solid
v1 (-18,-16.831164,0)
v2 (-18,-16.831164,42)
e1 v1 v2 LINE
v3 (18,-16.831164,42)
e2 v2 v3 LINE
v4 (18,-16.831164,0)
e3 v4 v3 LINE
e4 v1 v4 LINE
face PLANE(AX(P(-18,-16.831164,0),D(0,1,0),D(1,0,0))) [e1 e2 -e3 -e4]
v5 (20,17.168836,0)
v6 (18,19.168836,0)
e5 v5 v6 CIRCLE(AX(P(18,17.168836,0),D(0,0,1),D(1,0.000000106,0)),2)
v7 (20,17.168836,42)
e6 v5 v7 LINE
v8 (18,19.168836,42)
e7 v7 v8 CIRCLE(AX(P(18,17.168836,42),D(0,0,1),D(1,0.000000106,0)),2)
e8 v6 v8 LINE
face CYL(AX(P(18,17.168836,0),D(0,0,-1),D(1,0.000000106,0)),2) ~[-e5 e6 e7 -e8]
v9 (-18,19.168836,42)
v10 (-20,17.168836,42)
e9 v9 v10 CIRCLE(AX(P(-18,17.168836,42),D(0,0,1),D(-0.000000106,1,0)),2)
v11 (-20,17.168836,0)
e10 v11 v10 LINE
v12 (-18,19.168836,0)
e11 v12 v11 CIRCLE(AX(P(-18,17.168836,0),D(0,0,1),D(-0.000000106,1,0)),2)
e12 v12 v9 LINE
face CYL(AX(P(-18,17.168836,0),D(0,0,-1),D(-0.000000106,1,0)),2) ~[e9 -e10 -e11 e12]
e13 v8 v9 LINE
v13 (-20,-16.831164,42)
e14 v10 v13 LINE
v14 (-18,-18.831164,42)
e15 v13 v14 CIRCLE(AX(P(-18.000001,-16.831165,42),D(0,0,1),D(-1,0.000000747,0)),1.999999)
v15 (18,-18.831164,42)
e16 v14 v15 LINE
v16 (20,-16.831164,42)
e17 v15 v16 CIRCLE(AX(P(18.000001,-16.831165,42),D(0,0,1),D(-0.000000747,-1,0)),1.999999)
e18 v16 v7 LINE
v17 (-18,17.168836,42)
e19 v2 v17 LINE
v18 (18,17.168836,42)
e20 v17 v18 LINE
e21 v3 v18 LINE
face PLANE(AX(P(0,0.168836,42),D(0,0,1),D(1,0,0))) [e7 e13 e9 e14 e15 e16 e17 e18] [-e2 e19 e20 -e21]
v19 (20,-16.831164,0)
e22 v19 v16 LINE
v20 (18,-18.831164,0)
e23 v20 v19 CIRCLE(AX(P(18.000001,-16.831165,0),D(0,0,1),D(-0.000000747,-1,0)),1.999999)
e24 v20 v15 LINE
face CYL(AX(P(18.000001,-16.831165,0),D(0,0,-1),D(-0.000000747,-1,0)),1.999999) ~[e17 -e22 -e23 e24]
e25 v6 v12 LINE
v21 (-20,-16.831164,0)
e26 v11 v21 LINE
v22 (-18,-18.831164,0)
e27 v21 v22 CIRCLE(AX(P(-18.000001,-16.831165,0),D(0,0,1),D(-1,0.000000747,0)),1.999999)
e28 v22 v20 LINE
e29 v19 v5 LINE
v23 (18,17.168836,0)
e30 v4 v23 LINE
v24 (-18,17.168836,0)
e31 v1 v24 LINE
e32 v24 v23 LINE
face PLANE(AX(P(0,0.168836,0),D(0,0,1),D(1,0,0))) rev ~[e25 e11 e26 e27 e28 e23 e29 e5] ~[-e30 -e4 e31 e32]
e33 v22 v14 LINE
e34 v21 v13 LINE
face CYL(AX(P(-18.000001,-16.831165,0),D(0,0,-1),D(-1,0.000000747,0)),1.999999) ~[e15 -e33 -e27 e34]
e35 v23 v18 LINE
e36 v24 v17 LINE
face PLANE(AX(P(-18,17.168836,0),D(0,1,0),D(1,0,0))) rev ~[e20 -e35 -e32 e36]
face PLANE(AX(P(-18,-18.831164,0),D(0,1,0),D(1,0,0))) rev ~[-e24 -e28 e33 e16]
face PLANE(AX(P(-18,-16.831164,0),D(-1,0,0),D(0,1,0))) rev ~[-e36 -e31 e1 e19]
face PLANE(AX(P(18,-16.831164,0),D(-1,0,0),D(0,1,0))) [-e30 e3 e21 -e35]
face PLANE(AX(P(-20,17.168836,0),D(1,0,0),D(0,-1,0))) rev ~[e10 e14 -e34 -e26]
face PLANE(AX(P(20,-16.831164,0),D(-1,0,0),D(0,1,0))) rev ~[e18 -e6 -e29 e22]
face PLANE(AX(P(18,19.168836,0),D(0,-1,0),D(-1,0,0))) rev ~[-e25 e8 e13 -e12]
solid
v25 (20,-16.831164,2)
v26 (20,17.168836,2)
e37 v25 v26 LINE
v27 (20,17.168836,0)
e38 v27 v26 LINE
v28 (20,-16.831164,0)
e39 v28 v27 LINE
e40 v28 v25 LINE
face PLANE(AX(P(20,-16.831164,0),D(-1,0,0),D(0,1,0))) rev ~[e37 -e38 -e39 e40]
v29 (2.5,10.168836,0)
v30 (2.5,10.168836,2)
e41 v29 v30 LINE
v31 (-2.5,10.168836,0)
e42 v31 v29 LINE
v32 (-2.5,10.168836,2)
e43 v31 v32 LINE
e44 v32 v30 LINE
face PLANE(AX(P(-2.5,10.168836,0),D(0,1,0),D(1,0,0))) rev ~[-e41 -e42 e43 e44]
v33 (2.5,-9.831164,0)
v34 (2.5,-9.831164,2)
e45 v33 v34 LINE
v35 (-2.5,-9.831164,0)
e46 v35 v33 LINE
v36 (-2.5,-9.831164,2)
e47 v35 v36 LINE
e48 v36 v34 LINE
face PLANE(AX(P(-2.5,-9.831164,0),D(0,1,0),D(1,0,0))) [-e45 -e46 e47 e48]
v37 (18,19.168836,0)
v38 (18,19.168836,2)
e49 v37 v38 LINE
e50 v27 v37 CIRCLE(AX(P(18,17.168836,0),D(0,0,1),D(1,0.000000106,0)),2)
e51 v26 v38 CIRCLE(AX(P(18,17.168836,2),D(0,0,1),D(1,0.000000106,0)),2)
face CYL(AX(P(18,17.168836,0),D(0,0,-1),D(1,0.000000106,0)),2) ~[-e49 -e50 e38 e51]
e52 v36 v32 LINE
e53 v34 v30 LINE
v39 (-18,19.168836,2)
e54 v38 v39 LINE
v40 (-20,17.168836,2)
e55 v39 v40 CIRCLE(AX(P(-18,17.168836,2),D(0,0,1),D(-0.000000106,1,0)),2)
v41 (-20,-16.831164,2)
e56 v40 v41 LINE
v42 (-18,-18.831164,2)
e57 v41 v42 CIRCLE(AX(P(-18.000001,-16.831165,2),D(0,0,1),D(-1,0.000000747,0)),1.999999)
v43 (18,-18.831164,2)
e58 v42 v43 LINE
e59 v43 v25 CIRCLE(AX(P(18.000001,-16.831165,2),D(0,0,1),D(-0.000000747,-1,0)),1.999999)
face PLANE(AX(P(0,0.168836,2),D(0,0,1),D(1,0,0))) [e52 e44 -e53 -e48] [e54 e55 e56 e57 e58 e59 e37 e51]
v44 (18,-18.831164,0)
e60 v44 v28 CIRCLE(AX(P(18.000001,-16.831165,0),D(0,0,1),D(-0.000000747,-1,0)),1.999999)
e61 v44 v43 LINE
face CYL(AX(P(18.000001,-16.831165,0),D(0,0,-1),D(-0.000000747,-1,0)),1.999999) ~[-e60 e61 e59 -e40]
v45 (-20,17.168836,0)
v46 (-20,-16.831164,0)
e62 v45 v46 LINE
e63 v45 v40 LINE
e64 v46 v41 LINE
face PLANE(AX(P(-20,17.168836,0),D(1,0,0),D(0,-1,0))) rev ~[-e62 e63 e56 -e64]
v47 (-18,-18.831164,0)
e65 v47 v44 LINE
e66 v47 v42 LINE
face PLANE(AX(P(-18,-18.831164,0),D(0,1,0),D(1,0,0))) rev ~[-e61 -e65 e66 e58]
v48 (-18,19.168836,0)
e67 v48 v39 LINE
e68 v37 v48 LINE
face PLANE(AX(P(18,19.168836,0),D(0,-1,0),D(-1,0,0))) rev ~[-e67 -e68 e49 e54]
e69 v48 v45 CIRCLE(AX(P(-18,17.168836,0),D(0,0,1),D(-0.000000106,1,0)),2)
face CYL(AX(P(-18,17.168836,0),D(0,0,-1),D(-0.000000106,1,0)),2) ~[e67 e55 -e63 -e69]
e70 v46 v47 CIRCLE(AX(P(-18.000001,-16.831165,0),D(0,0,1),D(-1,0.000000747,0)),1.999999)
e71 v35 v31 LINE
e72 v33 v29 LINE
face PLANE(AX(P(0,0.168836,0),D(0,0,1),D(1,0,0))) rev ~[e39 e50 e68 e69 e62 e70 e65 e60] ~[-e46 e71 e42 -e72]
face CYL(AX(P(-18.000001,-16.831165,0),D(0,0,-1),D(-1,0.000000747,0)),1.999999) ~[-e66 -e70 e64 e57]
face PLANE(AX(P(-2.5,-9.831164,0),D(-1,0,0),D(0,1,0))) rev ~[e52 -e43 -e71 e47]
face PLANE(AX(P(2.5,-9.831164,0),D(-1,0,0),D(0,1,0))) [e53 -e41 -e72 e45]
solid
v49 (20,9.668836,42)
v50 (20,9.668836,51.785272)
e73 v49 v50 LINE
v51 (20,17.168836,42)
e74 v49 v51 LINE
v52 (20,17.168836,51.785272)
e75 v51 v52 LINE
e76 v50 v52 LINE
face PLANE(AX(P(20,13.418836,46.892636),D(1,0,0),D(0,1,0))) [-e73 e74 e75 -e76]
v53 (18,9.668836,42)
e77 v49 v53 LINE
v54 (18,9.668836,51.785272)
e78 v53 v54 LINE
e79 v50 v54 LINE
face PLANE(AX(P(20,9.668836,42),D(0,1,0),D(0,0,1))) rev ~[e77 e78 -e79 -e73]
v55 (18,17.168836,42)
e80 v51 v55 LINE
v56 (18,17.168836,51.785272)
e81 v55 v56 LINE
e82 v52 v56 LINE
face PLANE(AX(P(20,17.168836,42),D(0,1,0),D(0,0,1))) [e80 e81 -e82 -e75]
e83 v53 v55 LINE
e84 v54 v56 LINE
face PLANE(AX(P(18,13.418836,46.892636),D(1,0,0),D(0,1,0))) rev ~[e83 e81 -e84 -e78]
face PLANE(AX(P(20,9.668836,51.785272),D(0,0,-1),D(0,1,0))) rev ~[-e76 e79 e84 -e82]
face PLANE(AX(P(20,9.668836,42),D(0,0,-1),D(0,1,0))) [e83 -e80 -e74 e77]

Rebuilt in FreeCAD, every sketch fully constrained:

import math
import FreeCAD as App
import Part
import Sketcher

V = App.Vector
Q = App.Units.Quantity

doc = App.newDocument("Part")
params = doc.addObject("Spreadsheet::Sheet", "Params")
for row, (alias, value) in enumerate([
    ("sketch1_radius", "2 mm"),
    ("sketch1_width", "36 mm"),
    ("sketch1_width2", "5 mm"),
    ("sketch1_height", "34 mm"),
    ("sketch1_height2", "20 mm"),
    ("pad1_length", "2 mm"),
    ("sketch2_radius", "2 mm"),
    ("sketch2_width", "36 mm"),
    ("sketch2_height", "34 mm"),
    ("pad2_length", "42 mm"),
    ("sketch3_width", "7.5 mm"),
    ("pad3_length", "2 mm"),
], start=1):
    params.set(f"A{row}", alias)
    params.set(f"B{row}", "=" + value)
    params.setAlias(f"B{row}", alias)

body = doc.addObject("PartDesign::Body", "Body")

# Sketch on XY plane
sketch1 = body.newObject("Sketcher::SketchObject", "Sketch")
sketch1.AttachmentSupport = (doc.getObject("XY_Plane"), [""])
sketch1.MapMode = "FlatFace"
sketch1.addGeometry([
    Part.LineSegment(V(20, -16.8, 0), V(20, 17.2, 0)),  # 0
    Part.ArcOfCircle(Part.Circle(V(18, 17.2, 0), V(0, 0, 1), 2), math.radians(0), math.radians(90)),  # 1
    Part.LineSegment(V(18, 19.2, 0), V(-18, 19.2, 0)),  # 2
    Part.ArcOfCircle(Part.Circle(V(-18, 17.2, 0), V(0, 0, 1), 2), math.radians(90), math.radians(180)),  # 3
    Part.LineSegment(V(-20, 17.2, 0), V(-20, -16.8, 0)),  # 4
    Part.ArcOfCircle(Part.Circle(V(-18, -16.8, 0), V(0, 0, 1), 2), math.radians(180), math.radians(270)),  # 5
    Part.LineSegment(V(-18, -18.8, 0), V(18, -18.8, 0)),  # 6
    Part.ArcOfCircle(Part.Circle(V(18, -16.8, 0), V(0, 0, 1), 2), math.radians(-90), math.radians(0)),  # 7
    Part.LineSegment(V(2.5, -9.8, 0), V(-2.5, -9.8, 0)),  # 8
    Part.LineSegment(V(-2.5, -9.8, 0), V(-2.5, 10.2, 0)),  # 9
    Part.LineSegment(V(-2.5, 10.2, 0), V(2.5, 10.2, 0)),  # 10
    Part.LineSegment(V(2.5, 10.2, 0), V(2.5, -9.8, 0)),  # 11
], False)
sketch1.addConstraint([
    Sketcher.Constraint("Tangent", 0, 2, 1, 1),
    Sketcher.Constraint("Tangent", 1, 2, 2, 1),
    Sketcher.Constraint("Tangent", 2, 2, 3, 1),
    Sketcher.Constraint("Tangent", 3, 2, 4, 1),
    Sketcher.Constraint("Tangent", 4, 2, 5, 1),
    Sketcher.Constraint("Tangent", 5, 2, 6, 1),
    Sketcher.Constraint("Tangent", 6, 2, 7, 1),
    Sketcher.Constraint("Tangent", 7, 2, 0, 1),
    Sketcher.Constraint("Coincident", 8, 2, 9, 1),
    Sketcher.Constraint("Coincident", 9, 2, 10, 1),
    Sketcher.Constraint("Coincident", 10, 2, 11, 1),
    Sketcher.Constraint("Coincident", 11, 2, 8, 1),
    Sketcher.Constraint("Vertical", 0),
    Sketcher.Constraint("Horizontal", 2),
    Sketcher.Constraint("Vertical", 4),
    Sketcher.Constraint("Horizontal", 6),
    Sketcher.Constraint("Horizontal", 8),
    Sketcher.Constraint("Vertical", 9),
    Sketcher.Constraint("Horizontal", 10),
    Sketcher.Constraint("Vertical", 11),
    Sketcher.Constraint("Equal", 1, 3),
    Sketcher.Constraint("Equal", 3, 5),
    Sketcher.Constraint("Equal", 5, 7),
    Sketcher.Constraint("Radius", 1, Q("2 mm")),
    Sketcher.Constraint("DistanceX", 2, 2, 2, 1, Q("36 mm")),
    Sketcher.Constraint("DistanceX", 8, 2, 8, 1, Q("5 mm")),
    Sketcher.Constraint("DistanceY", 0, 1, 0, 2, Q("34 mm")),
    Sketcher.Constraint("DistanceY", 9, 1, 9, 2, Q("20 mm")),
    Sketcher.Constraint("DistanceX", -1, 1, 1, 3, Q("18 mm")),
    Sketcher.Constraint("DistanceY", 5, 3, 8, 2, Q("7.000001 mm")),
    Sketcher.Constraint("DistanceX", 8, 2, -1, 1, Q("2.5 mm")),
    Sketcher.Constraint("DistanceY", -1, 1, 1, 3, Q("17.168836 mm")),
])
sketch1.setExpression("Constraints[23]", "Params.sketch1_radius")
sketch1.setExpression("Constraints[24]", "Params.sketch1_width")
sketch1.setExpression("Constraints[25]", "Params.sketch1_width2")
sketch1.setExpression("Constraints[26]", "Params.sketch1_height")
sketch1.setExpression("Constraints[27]", "Params.sketch1_height2")
pad1 = body.newObject("PartDesign::Pad", "Pad")
pad1.Profile = sketch1
pad1.setExpression("Length", "Params.pad1_length")
body2 = doc.addObject("PartDesign::Body", "Body001")

# Sketch on XY plane
sketch2 = body2.newObject("Sketcher::SketchObject", "Sketch001")
sketch2.AttachmentSupport = (doc.getObject("XY_Plane001"), [""])
sketch2.MapMode = "FlatFace"
sketch2.addGeometry([
    Part.LineSegment(V(20, -16.8, 0), V(20, 17.2, 0)),  # 0
    Part.ArcOfCircle(Part.Circle(V(18, 17.2, 0), V(0, 0, 1), 2), math.radians(0), math.radians(90)),  # 1
    Part.LineSegment(V(18, 19.2, 0), V(-18, 19.2, 0)),  # 2
    Part.ArcOfCircle(Part.Circle(V(-18, 17.2, 0), V(0, 0, 1), 2), math.radians(90), math.radians(180)),  # 3
    Part.LineSegment(V(-20, 17.2, 0), V(-20, -16.8, 0)),  # 4
    Part.ArcOfCircle(Part.Circle(V(-18, -16.8, 0), V(0, 0, 1), 2), math.radians(180), math.radians(270)),  # 5
    Part.LineSegment(V(-18, -18.8, 0), V(18, -18.8, 0)),  # 6
    Part.ArcOfCircle(Part.Circle(V(18, -16.8, 0), V(0, 0, 1), 2), math.radians(-90), math.radians(0)),  # 7
    Part.LineSegment(V(18, -16.8, 0), V(-18, -16.8, 0)),  # 8
    Part.LineSegment(V(-18, -16.8, 0), V(-18, 17.2, 0)),  # 9
    Part.LineSegment(V(-18, 17.2, 0), V(18, 17.2, 0)),  # 10
    Part.LineSegment(V(18, 17.2, 0), V(18, -16.8, 0)),  # 11
], False)
sketch2.addConstraint([
    Sketcher.Constraint("Tangent", 0, 2, 1, 1),
    Sketcher.Constraint("Tangent", 1, 2, 2, 1),
    Sketcher.Constraint("Tangent", 2, 2, 3, 1),
    Sketcher.Constraint("Tangent", 3, 2, 4, 1),
    Sketcher.Constraint("Tangent", 4, 2, 5, 1),
    Sketcher.Constraint("Tangent", 5, 2, 6, 1),
    Sketcher.Constraint("Tangent", 6, 2, 7, 1),
    Sketcher.Constraint("Tangent", 7, 2, 0, 1),
    Sketcher.Constraint("Coincident", 8, 2, 9, 1),
    Sketcher.Constraint("Coincident", 9, 2, 10, 1),
    Sketcher.Constraint("Coincident", 10, 2, 11, 1),
    Sketcher.Constraint("Coincident", 11, 2, 8, 1),
    Sketcher.Constraint("Vertical", 0),
    Sketcher.Constraint("Horizontal", 2),
    Sketcher.Constraint("Vertical", 4),
    Sketcher.Constraint("Horizontal", 6),
    Sketcher.Constraint("Horizontal", 8),
    Sketcher.Constraint("Vertical", 9),
    Sketcher.Constraint("Horizontal", 10),
    Sketcher.Constraint("Vertical", 11),
    Sketcher.Constraint("Coincident", 8, 2, 5, 3),
    Sketcher.Constraint("Coincident", 9, 2, 3, 3),
    Sketcher.Constraint("Coincident", 10, 2, 1, 3),
    Sketcher.Constraint("Equal", 5, 7),
    Sketcher.Constraint("Radius", 1, Q("2 mm")),
    Sketcher.Constraint("DistanceX", 2, 2, 2, 1, Q("36 mm")),
    Sketcher.Constraint("DistanceY", 0, 1, 0, 2, Q("34 mm")),
    Sketcher.Constraint("DistanceX", -1, 1, 1, 3, Q("18 mm")),
    Sketcher.Constraint("DistanceY", -1, 1, 1, 3, Q("17.168836 mm")),
])
sketch2.setExpression("Constraints[24]", "Params.sketch2_radius")
sketch2.setExpression("Constraints[25]", "Params.sketch2_width")
sketch2.setExpression("Constraints[26]", "Params.sketch2_height")
pad2 = body2.newObject("PartDesign::Pad", "Pad001")
pad2.Profile = sketch2
pad2.setExpression("Length", "Params.pad2_length")
body3 = doc.addObject("PartDesign::Body", "Body002")

# Sketch on YZ plane
sketch3 = body3.newObject("Sketcher::SketchObject", "Sketch002")
sketch3.AttachmentSupport = (doc.getObject("YZ_Plane002"), [""])
sketch3.MapMode = "FlatFace"
sketch3.AttachmentOffset = App.Placement(V(0, 0, 20), App.Rotation())
sketch3.addGeometry([
    Part.LineSegment(V(10, 52, 0), V(10, 42, 0)),
    Part.LineSegment(V(10, 42, 0), V(17, 42, 0)),
    Part.LineSegment(V(17, 42, 0), V(17, 52, 0)),
    Part.LineSegment(V(17, 52, 0), V(10, 52, 0)),
], False)
sketch3.addConstraint([
    Sketcher.Constraint("Coincident", 0, 2, 1, 1),
    Sketcher.Constraint("Coincident", 1, 2, 2, 1),
    Sketcher.Constraint("Coincident", 2, 2, 3, 1),
    Sketcher.Constraint("Coincident", 3, 2, 0, 1),
    Sketcher.Constraint("Vertical", 0),
    Sketcher.Constraint("Horizontal", 1),
    Sketcher.Constraint("Vertical", 2),
    Sketcher.Constraint("Horizontal", 3),
    Sketcher.Constraint("DistanceX", 1, 1, 1, 2, Q("7.5 mm")),
    Sketcher.Constraint("DistanceY", -1, 1, 0, 2, Q("42 mm")),
    Sketcher.Constraint("DistanceY", 0, 2, 0, 1, Q("9.785272 mm")),
    Sketcher.Constraint("DistanceX", -1, 1, 0, 2, Q("9.668836 mm")),
])
sketch3.setExpression("Constraints[8]", "Params.sketch3_width")
pad3 = body3.newObject("PartDesign::Pad", "Pad002")
pad3.Profile = sketch3
pad3.setExpression("Length", "Params.pad3_length")
pad3.Reversed = True

doc.recompute()
